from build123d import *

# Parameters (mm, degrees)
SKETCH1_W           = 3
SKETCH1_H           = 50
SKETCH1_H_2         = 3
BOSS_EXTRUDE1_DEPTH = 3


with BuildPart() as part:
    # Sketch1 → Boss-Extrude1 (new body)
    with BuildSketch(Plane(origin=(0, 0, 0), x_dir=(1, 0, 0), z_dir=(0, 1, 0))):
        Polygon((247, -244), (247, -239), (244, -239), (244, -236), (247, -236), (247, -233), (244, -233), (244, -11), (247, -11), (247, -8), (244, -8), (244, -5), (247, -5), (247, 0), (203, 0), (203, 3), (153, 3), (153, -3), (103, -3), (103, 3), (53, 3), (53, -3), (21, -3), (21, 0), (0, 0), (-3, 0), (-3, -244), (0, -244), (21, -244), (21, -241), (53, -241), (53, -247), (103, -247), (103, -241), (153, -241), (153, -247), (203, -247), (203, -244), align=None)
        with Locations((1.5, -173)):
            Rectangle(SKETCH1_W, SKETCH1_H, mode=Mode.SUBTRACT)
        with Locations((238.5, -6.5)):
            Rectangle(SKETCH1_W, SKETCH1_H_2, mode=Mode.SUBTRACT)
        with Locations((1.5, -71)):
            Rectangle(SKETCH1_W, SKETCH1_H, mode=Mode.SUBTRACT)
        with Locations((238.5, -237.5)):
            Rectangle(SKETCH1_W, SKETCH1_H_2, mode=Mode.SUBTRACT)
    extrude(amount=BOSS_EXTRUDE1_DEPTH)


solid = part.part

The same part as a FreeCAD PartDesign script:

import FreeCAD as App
import Part
import Sketcher
from FreeCAD import Vector


def add_polygon(sketch, points):
    """Adds a closed chain of lines whose ends are joined by coincident constraints."""
    first, n = sketch.GeometryCount, len(points)
    for a, b in zip(points, points[1:] + points[:1]):
        sketch.addGeometry(Part.LineSegment(App.Vector(*a, 0), App.Vector(*b, 0)), False)
    for i in range(n):
        sketch.addConstraint(Sketcher.Constraint("Coincident", first + i, 2, first + (i + 1) % n, 1))

doc = App.newDocument("Part")
body = doc.addObject("PartDesign::Body", "Body")

sketch1 = body.newObject("Sketcher::SketchObject", "Sketch")
sketch1.AttachmentSupport = (doc.getObject("XZ_Plane"), [""])
sketch1.MapMode = "FlatFace"
add_polygon(sketch1, [(247, 244), (247, 239), (244, 239), (244, 236), (247, 236), (247, 233), (244, 233), (244, 11), (247, 11), (247, 8), (244, 8), (244, 5), (247, 5), (247, 0), (203, 0), (203, -3), (153, -3), (153, 3), (103, 3), (103, -3), (53, -3), (53, 3), (21, 3), (21, 0), (-3, 0), (-3, 244), (21, 244), (21, 241), (53, 241), (53, 247), (103, 247), (103, 241), (153, 241), (153, 247), (203, 247), (203, 244)])
add_polygon(sketch1, [(3, 198), (0, 198), (0, 148), (3, 148)])
add_polygon(sketch1, [(240, 239), (237, 239), (237, 236), (240, 236)])
add_polygon(sketch1, [(3, 96), (0, 96), (0, 46), (3, 46)])
add_polygon(sketch1, [(240, 8), (237, 8), (237, 5), (240, 5)])
sketch1.addConstraint([
    Sketcher.Constraint("Vertical", 0),
    Sketcher.Constraint("Horizontal", 1),
    Sketcher.Constraint("Vertical", 2),
    Sketcher.Constraint("Horizontal", 3),
    Sketcher.Constraint("Vertical", 4),
    Sketcher.Constraint("Horizontal", 5),
    Sketcher.Constraint("Vertical", 6),
    Sketcher.Constraint("Horizontal", 7),
    Sketcher.Constraint("Vertical", 8),
    Sketcher.Constraint("Horizontal", 9),
    Sketcher.Constraint("Vertical", 10),
    Sketcher.Constraint("Horizontal", 11),
    Sketcher.Constraint("Vertical", 12),
    Sketcher.Constraint("Horizontal", 13),
    Sketcher.Constraint("Vertical", 14),
    Sketcher.Constraint("Horizontal", 15),
    Sketcher.Constraint("Vertical", 16),
    Sketcher.Constraint("Horizontal", 17),
    Sketcher.Constraint("Vertical", 18),
    Sketcher.Constraint("Horizontal", 19),
    Sketcher.Constraint("Vertical", 20),
    Sketcher.Constraint("Horizontal", 21),
    Sketcher.Constraint("Vertical", 22),
    Sketcher.Constraint("Horizontal", 23),
    Sketcher.Constraint("Vertical", 24),
    Sketcher.Constraint("Horizontal", 25),
    Sketcher.Constraint("Vertical", 26),
    Sketcher.Constraint("Horizontal", 27),
    Sketcher.Constraint("Vertical", 28),
    Sketcher.Constraint("Horizontal", 29),
    Sketcher.Constraint("Vertical", 30),
    Sketcher.Constraint("Horizontal", 31),
    Sketcher.Constraint("Vertical", 32),
    Sketcher.Constraint("Horizontal", 33),
    Sketcher.Constraint("Vertical", 34),
    Sketcher.Constraint("Horizontal", 35),
    Sketcher.Constraint("Horizontal", 36),
    Sketcher.Constraint("Vertical", 37),
    Sketcher.Constraint("Horizontal", 38),
    Sketcher.Constraint("Vertical", 39),
    Sketcher.Constraint("Horizontal", 40),
    Sketcher.Constraint("Vertical", 41),
    Sketcher.Constraint("Horizontal", 42),
    Sketcher.Constraint("Vertical", 43),
    Sketcher.Constraint("Horizontal", 44),
    Sketcher.Constraint("Vertical", 45),
    Sketcher.Constraint("Horizontal", 46),
    Sketcher.Constraint("Vertical", 47),
    Sketcher.Constraint("Horizontal", 48),
    Sketcher.Constraint("Vertical", 49),
    Sketcher.Constraint("Horizontal", 50),
    Sketcher.Constraint("Vertical", 51),
    Sketcher.Constraint("PointOnObject", 12, 2, -1),
    Sketcher.Constraint("PointOnObject", 22, 2, -1),
    Sketcher.Constraint("PointOnObject", 36, 2, -2),
    Sketcher.Constraint("PointOnObject", 44, 2, -2),
    Sketcher.Constraint("Horizontal", 15, 2, 18, 2),
    Sketcher.Constraint("Horizontal", 17, 2, 20, 2),
    Sketcher.Constraint("Horizontal", 27, 2, 30, 2),
    Sketcher.Constraint("Horizontal", 29, 2, 32, 2),
    Sketcher.Constraint("Horizontal", 25, 2, 34, 2),
    Sketcher.Constraint("Horizontal", 1, 2, 40, 2),
    Sketcher.Constraint("Horizontal", 3, 2, 41, 2),
    Sketcher.Constraint("Horizontal", 9, 2, 48, 2),
    Sketcher.Constraint("Horizontal", 11, 2, 49, 2),
    Sketcher.Constraint("Vertical", 0, 2, 3, 2),
    Sketcher.Constraint("Vertical", 2, 2, 5, 2),
    Sketcher.Constraint("Vertical", 4, 2, 7, 2),
    Sketcher.Constraint("Vertical", 6, 2, 9, 2),
    Sketcher.Constraint("Vertical", 8, 2, 11, 2),
    Sketcher.Constraint("Vertical", 22, 2, 25, 2),
    Sketcher.Constraint("Vertical", 20, 2, 27, 2),
    Sketcher.Constraint("Vertical", 18, 2, 29, 2),
    Sketcher.Constraint("Vertical", 16, 2, 31, 2),
    Sketcher.Constraint("Vertical", 14, 2, 33, 2),
    Sketcher.Constraint("Vertical", 39, 2, 46, 2),
    Sketcher.Constraint("Vertical", 41, 2, 48, 2),
    Sketcher.Constraint("Vertical", 43, 2, 50, 2),
    Sketcher.Constraint("Equal", 15, 17),
    Sketcher.Constraint("Equal", 17, 19),
    Sketcher.Constraint("Equal", 11, 36),
    Sketcher.Constraint("Equal", 38, 40),
    Sketcher.Constraint("Equal", 50, 2),
    Sketcher.Constraint("Equal", 2, 4),
    Sketcher.Constraint("Equal", 4, 8),
    Sketcher.Constraint("Equal", 8, 10),
    Sketcher.Constraint("Equal", 0, 12),
    Sketcher.Constraint("Equal", 10, 14),
    Sketcher.Constraint("Equal", 14, 22),
    Sketcher.Constraint("Equal", 22, 26),
    Sketcher.Constraint("Equal", 20, 28),
    Sketcher.Constraint("Equal", 33, 37),
    Sketcher.Constraint("Equal", 39, 45),
    Sketcher.Constraint("DistanceX", 1, 2, 1, 1, 3.0),
    Sketcher.Constraint("DistanceX", 13, 2, 13, 1, 44.0),
    Sketcher.Constraint("DistanceX", 15, 2, 15, 1, 50.0),
    Sketcher.Constraint("DistanceX", 21, 2, 21, 1, 32.0),
    Sketcher.Constraint("DistanceX", 23, 2, 23, 1, 24.0),
    Sketcher.Constraint("DistanceY", 0, 2, 0, 1, 5.0),
    Sketcher.Constraint("DistanceY", 6, 2, 6, 1, 222.0),
    Sketcher.Constraint("DistanceX", -1, 1, 0, 2, 247.0),
    Sketcher.Constraint("DistanceY", -1, 1, 36, 2, 198.0),
    Sketcher.Constraint("DistanceX", -1, 1, 40, 2, 237.0),
    Sketcher.Constraint("DistanceY", -1, 1, 44, 2, 96.0),
])
pad1 = body.newObject("PartDesign::Pad", "Pad")
pad1.Profile = sketch1
pad1.Length = 3
pad1.Reversed = True

doc.recompute()
